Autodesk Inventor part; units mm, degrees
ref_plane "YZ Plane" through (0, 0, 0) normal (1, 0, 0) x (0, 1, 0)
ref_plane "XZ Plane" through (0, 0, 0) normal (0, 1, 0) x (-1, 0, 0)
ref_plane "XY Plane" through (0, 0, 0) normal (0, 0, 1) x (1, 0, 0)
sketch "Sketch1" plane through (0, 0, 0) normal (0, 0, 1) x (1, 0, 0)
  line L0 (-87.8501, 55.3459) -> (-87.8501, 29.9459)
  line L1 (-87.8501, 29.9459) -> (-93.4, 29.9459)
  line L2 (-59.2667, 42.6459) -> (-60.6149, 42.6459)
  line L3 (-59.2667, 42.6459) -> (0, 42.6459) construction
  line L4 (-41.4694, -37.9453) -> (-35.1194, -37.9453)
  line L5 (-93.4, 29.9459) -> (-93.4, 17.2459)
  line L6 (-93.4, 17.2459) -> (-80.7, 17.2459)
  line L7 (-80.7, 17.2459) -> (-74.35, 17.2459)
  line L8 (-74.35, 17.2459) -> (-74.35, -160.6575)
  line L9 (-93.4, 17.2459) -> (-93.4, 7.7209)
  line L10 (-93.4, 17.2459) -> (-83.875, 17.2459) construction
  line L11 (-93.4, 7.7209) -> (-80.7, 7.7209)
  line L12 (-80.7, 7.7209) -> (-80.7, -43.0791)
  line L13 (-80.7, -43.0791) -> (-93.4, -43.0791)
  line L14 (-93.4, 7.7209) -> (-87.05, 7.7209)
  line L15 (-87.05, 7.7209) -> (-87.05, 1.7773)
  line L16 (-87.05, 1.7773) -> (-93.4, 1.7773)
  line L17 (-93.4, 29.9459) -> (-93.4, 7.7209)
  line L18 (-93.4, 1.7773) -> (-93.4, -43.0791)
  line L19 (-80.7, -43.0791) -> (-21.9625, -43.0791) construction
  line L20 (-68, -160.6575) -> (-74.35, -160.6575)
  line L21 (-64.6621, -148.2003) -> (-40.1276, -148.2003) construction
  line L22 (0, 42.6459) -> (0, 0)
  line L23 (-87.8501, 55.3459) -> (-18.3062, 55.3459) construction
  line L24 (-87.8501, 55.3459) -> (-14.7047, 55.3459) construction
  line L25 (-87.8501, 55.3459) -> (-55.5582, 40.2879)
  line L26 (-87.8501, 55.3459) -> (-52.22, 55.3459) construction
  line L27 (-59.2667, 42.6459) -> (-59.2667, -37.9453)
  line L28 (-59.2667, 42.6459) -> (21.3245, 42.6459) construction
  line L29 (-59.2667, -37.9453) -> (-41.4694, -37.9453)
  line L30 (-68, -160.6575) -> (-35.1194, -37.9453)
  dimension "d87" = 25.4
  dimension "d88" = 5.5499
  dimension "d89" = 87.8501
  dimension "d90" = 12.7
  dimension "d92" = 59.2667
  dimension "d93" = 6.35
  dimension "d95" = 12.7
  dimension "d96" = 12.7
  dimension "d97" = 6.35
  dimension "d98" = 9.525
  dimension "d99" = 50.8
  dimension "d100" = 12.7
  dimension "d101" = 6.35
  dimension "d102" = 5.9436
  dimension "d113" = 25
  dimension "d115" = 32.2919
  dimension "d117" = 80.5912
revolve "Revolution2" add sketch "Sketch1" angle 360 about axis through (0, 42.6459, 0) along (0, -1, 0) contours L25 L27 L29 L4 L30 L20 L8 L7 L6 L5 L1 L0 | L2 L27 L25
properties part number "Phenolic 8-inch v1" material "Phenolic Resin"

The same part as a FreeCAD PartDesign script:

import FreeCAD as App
import Part
import Sketcher
from FreeCAD import Vector
Q = App.Units.Quantity

doc = App.newDocument("Part")
params = doc.addObject("Spreadsheet::Sheet", "Params")
for row, (alias, value) in enumerate([
    ("sketch1_height", "1 in"),
    ("sketch1_height2", "0.5 in"),
    ("sketch1_width", "0.25 in"),
    ("revolution_angle", "360 deg"),
], start=1):
    params.set(f"A{row}", alias)
    params.set(f"B{row}", "=" + value)
    params.setAlias(f"B{row}", alias)

body = doc.addObject("PartDesign::Body", "Body")

sketch1 = doc.addObject("Sketcher::SketchObject", "Sketch")
body.addObject(sketch1)
sketch1.AttachmentSupport = (doc.XY_Plane, [""])
sketch1.MapMode = "FlatFace"
sketch1.addGeometry([
    Part.LineSegment(Vector(-60.6, 42.6, 0), Vector(-87.9, 55.3, 0)),
    Part.LineSegment(Vector(-87.9, 55.3, 0), Vector(-87.9, 29.9, 0)),
    Part.LineSegment(Vector(-87.9, 29.9, 0), Vector(-93.4, 29.9, 0)),
    Part.LineSegment(Vector(-93.4, 29.9, 0), Vector(-93.4, 17.2, 0)),
    Part.LineSegment(Vector(-93.4, 17.2, 0), Vector(-74.3, 17.2, 0)),
    Part.LineSegment(Vector(-74.3, 17.2, 0), Vector(-74.3, -160.7, 0)),
    Part.LineSegment(Vector(-74.3, -160.7, 0), Vector(-68, -160.7, 0)),
    Part.LineSegment(Vector(-68, -160.7, 0), Vector(-35.1, -37.9, 0)),
    Part.LineSegment(Vector(-35.1, -37.9, 0), Vector(-59.3, -37.9, 0)),
    Part.LineSegment(Vector(-59.3, -37.9, 0), Vector(-59.3, 42.6, 0)),
    Part.LineSegment(Vector(-59.3, 42.6, 0), Vector(-60.6, 42.6, 0)),
], False)
sketch1.addConstraint([
    Sketcher.Constraint("Coincident", 0, 2, 1, 1),
    Sketcher.Constraint("Coincident", 1, 2, 2, 1),
    Sketcher.Constraint("Coincident", 2, 2, 3, 1),
    Sketcher.Constraint("Coincident", 3, 2, 4, 1),
    Sketcher.Constraint("Coincident", 4, 2, 5, 1),
    Sketcher.Constraint("Coincident", 5, 2, 6, 1),
    Sketcher.Constraint("Coincident", 6, 2, 7, 1),
    Sketcher.Constraint("Coincident", 7, 2, 8, 1),
    Sketcher.Constraint("Coincident", 8, 2, 9, 1),
    Sketcher.Constraint("Coincident", 9, 2, 10, 1),
    Sketcher.Constraint("Coincident", 10, 2, 0, 1),
    Sketcher.Constraint("Vertical", 1),
    Sketcher.Constraint("Horizontal", 2),
    Sketcher.Constraint("Vertical", 3),
    Sketcher.Constraint("Horizontal", 4),
    Sketcher.Constraint("Vertical", 5),
    Sketcher.Constraint("Horizontal", 6),
    Sketcher.Constraint("Horizontal", 8),
    Sketcher.Constraint("Vertical", 9),
    Sketcher.Constraint("Horizontal", 10),
    Sketcher.Constraint("DistanceY", 1, 2, 1, 1, Q("1 in")),
    Sketcher.Constraint("DistanceY", 3, 2, 3, 1, Q("0.5 in")),
    Sketcher.Constraint("DistanceX", 3, 2, 6, 2, Q("1 in")),
    Sketcher.Constraint("DistanceY", 4, 2, 9, 2, Q("1 in")),
    Sketcher.Constraint("DistanceX", 6, 1, 6, 2, Q("0.25 in")),
    Sketcher.Constraint("DistanceX", 2, 2, 2, 1, Q("0.2185 in")),
    Sketcher.Constraint("Angle", 0, Q("155 deg")),
    Sketcher.Constraint("Angle", 7, Q("75 deg")),
    Sketcher.Constraint("DistanceY", 9, 1, 9, 2, 80.5912),
    Sketcher.Constraint("DistanceX", 0, 2, -1, 1, 87.85),
    Sketcher.Constraint("DistanceX", 8, 2, -1, 1, 59.2667),
    Sketcher.Constraint("DistanceX", 1, 2, 7, 2, Q("2.076 in")),
    Sketcher.Constraint("DistanceY", 5, 2, -1, 1, Q("6.3251 in")),
])
sketch1.setExpression("Constraints[20]", "Params.sketch1_height")
sketch1.setExpression("Constraints[21]", "Params.sketch1_height2")
sketch1.setExpression("Constraints[24]", "Params.sketch1_width")
revolution = doc.addObject("PartDesign::Revolution", "Revolution")
body.addObject(revolution)
revolution.Profile = sketch1
revolution.ReferenceAxis = (sketch1, ["V_Axis"])
revolution.setExpression("Angle", "Params.revolution_angle")

doc.recompute()
